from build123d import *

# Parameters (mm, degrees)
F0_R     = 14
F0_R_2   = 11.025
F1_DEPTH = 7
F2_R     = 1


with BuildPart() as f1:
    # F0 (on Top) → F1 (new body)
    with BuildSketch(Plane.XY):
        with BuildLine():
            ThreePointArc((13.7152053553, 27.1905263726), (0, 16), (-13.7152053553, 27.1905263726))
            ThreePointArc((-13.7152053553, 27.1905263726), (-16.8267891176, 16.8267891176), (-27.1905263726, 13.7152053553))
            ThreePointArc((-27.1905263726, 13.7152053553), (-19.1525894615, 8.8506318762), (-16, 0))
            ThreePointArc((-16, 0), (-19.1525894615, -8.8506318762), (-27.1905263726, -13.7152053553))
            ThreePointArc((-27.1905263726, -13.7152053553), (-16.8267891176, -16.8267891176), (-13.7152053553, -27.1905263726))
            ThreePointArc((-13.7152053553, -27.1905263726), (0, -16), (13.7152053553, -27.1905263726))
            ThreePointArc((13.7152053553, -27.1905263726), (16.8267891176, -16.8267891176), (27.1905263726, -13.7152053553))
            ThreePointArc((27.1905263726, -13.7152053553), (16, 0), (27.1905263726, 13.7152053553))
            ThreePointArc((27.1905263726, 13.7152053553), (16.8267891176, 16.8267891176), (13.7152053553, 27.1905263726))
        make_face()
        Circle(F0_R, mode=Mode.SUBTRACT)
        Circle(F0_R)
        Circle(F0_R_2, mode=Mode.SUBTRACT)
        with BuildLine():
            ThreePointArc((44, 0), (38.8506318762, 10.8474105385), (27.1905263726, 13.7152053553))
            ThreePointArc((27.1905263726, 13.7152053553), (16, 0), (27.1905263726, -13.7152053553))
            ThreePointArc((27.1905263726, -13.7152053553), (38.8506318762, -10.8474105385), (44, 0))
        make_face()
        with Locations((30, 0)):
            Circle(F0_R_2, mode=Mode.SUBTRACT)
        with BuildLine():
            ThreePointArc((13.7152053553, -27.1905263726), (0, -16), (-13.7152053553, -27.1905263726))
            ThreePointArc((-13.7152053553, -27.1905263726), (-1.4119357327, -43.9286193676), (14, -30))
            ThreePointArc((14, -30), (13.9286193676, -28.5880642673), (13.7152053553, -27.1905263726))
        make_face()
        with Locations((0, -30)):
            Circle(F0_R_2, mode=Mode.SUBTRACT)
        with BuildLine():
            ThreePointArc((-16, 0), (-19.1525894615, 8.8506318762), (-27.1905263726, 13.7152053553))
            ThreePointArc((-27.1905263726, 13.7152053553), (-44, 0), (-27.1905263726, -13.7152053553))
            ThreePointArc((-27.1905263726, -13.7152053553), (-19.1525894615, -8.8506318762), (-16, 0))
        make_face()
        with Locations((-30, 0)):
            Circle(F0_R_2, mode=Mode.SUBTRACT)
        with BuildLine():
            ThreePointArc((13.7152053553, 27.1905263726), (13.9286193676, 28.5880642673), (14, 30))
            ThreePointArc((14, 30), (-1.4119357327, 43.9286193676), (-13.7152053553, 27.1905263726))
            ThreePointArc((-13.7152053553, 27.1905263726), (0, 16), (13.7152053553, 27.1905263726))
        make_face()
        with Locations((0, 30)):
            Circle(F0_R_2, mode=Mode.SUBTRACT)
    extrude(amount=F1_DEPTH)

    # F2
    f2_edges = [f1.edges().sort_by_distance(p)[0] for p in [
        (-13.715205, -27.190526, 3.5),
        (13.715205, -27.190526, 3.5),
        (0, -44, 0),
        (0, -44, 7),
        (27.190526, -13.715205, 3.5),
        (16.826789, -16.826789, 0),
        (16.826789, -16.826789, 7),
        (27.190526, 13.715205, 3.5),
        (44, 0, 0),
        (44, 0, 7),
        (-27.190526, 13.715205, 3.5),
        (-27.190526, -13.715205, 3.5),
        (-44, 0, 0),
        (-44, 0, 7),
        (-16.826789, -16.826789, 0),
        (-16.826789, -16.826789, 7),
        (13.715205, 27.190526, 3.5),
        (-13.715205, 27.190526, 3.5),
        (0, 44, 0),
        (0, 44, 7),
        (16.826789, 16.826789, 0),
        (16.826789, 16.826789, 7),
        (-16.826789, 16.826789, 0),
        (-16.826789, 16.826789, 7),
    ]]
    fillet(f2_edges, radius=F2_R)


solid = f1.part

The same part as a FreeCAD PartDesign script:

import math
import FreeCAD as App
import Part
import Sketcher

V = App.Vector
Q = App.Units.Quantity


def edges_at(feature, points):
    """Names of the edges that pass closest to the given points."""
    edges = feature.Shape.Edges
    near = lambda p: min(range(len(edges)), key=lambda i: edges[i].distToShape(Part.Vertex(*p))[0])
    return sorted({f"Edge{near(p) + 1}" for p in points})

doc = App.newDocument("Part")
body = doc.addObject("PartDesign::Body", "Body")

sketch1 = body.newObject("Sketcher::SketchObject", "Sketch")
sketch1.AttachmentSupport = (doc.getObject("XY_Plane"), [""])
sketch1.MapMode = "FlatFace"
sketch1.addGeometry(Part.ArcOfCircle(Part.Circle(V(24.9, 24.9, 0), V(0, 0, 1), 11.4), math.radians(168), math.radians(282)), False)
sketch1.addGeometry(Part.ArcOfCircle(Part.Circle(V(0, 30, 0), V(0, 0, 1), 14), math.radians(-11.58), math.radians(0)), False)
sketch1.addGeometry(Part.ArcOfCircle(Part.Circle(V(0, 30, 0), V(0, 0, 1), 14), math.radians(0), math.radians(192)), False)
sketch1.addGeometry(Part.ArcOfCircle(Part.Circle(V(-24.9, 24.9, 0), V(0, 0, 1), 11.4), math.radians(-102), math.radians(12)), False)
sketch1.addGeometry(Part.ArcOfCircle(Part.Circle(V(-30, 0, 0), V(0, 0, 1), 14), math.radians(78), math.radians(282)), False)
sketch1.addGeometry(Part.ArcOfCircle(Part.Circle(V(-24.9, -24.9, 0), V(0, 0, 1), 11.4), math.radians(-12), math.radians(102)), False)
sketch1.addGeometry(Part.ArcOfCircle(Part.Circle(V(0, -30, 0), V(0, 0, 1), 14), math.radians(168), math.radians(360)), False)
sketch1.addGeometry(Part.ArcOfCircle(Part.Circle(V(0, -30, 0), V(0, 0, 1), 14), math.radians(0), math.radians(11.58)), False)
sketch1.addGeometry(Part.ArcOfCircle(Part.Circle(V(24.9, -24.9, 0), V(0, 0, 1), 11.4), math.radians(78), math.radians(192)), False)
sketch1.addGeometry(Part.ArcOfCircle(Part.Circle(V(30, 0, 0), V(0, 0, 1), 14), math.radians(-102), math.radians(0)), False)
sketch1.addGeometry(Part.ArcOfCircle(Part.Circle(V(30, 0, 0), V(0, 0, 1), 14), math.radians(0), math.radians(102)), False)
sketch1.addGeometry(Part.Circle(V(0, -30, 0), V(0, 0, 1), 11), False)
sketch1.addGeometry(Part.Circle(V(-30, 0, 0), V(0, 0, 1), 11), False)
sketch1.addGeometry(Part.Circle(V(0, 0, 0), V(0, 0, 1), 11), False)
sketch1.addGeometry(Part.Circle(V(30, 0, 0), V(0, 0, 1), 11), False)
sketch1.addGeometry(Part.Circle(V(0, 30, 0), V(0, 0, 1), 11), False)
sketch1.addConstraint(Sketcher.Constraint("Tangent", 0, 1, 1, 1))
sketch1.addConstraint(Sketcher.Constraint("Tangent", 1, 2, 2, 1))
sketch1.addConstraint(Sketcher.Constraint("Tangent", 2, 2, 3, 2))
sketch1.addConstraint(Sketcher.Constraint("Tangent", 3, 1, 4, 1))
sketch1.addConstraint(Sketcher.Constraint("Tangent", 4, 2, 5, 2))
sketch1.addConstraint(Sketcher.Constraint("Tangent", 5, 1, 6, 1))
sketch1.addConstraint(Sketcher.Constraint("Tangent", 6, 2, 7, 1))
sketch1.addConstraint(Sketcher.Constraint("Tangent", 7, 2, 8, 2))
sketch1.addConstraint(Sketcher.Constraint("Tangent", 8, 1, 9, 1))
sketch1.addConstraint(Sketcher.Constraint("Tangent", 9, 2, 10, 1))
sketch1.addConstraint(Sketcher.Constraint("Tangent", 10, 2, 0, 2))
sketch1.addConstraint(Sketcher.Constraint("Coincident", 13, 3, -1, 1))
sketch1.addConstraint(Sketcher.Constraint("Coincident", 11, 3, 6, 3))
sketch1.addConstraint(Sketcher.Constraint("Coincident", 12, 3, 4, 3))
sketch1.addConstraint(Sketcher.Constraint("Coincident", 14, 3, 9, 3))
sketch1.addConstraint(Sketcher.Constraint("Coincident", 15, 3, 1, 3))
sketch1.addConstraint(Sketcher.Constraint("Equal", 1, 2))
sketch1.addConstraint(Sketcher.Constraint("Equal", 0, 3))
sketch1.addConstraint(Sketcher.Constraint("Equal", 2, 4))
sketch1.addConstraint(Sketcher.Constraint("Equal", 3, 5))
sketch1.addConstraint(Sketcher.Constraint("Equal", 4, 6))
sketch1.addConstraint(Sketcher.Constraint("Equal", 6, 7))
sketch1.addConstraint(Sketcher.Constraint("Equal", 5, 8))
sketch1.addConstraint(Sketcher.Constraint("Equal", 7, 9))
sketch1.addConstraint(Sketcher.Constraint("Equal", 9, 10))
sketch1.addConstraint(Sketcher.Constraint("Equal", 11, 12))
sketch1.addConstraint(Sketcher.Constraint("Equal", 12, 13))
sketch1.addConstraint(Sketcher.Constraint("Equal", 13, 14))
sketch1.addConstraint(Sketcher.Constraint("Equal", 14, 15))
sketch1.addConstraint(Sketcher.Constraint("Symmetric", 0, 3, 5, 3, -1, 1))
sketch1.addConstraint(Sketcher.Constraint("Symmetric", 3, 3, 8, 3, -1, 1))
sketch1.addConstraint(Sketcher.Constraint("Symmetric", 0, 3, 3, 3, -2))
sketch1.addConstraint(Sketcher.Constraint("PointOnObject", 9, 2, -1))
sketch1.addConstraint(Sketcher.Constraint("Horizontal", 15, 3, 1, 2))
sketch1.addConstraint(Sketcher.Constraint("Horizontal", 11, 3, 6, 2))
sketch1.addConstraint(Sketcher.Constraint("Radius", 1, Q("14 mm")))
sketch1.addConstraint(Sketcher.Constraint("Diameter", 11, Q("22.05 mm")))
sketch1.addConstraint(Sketcher.Constraint("DistanceY", -1, 1, 1, 3, Q("30 mm")))
sketch1.addConstraint(Sketcher.Constraint("DistanceX", 4, 3, -1, 1, Q("30 mm")))
sketch1.addConstraint(Sketcher.Constraint("Radius", 0, Q("11.41653 mm")))
pad1 = body.newObject("PartDesign::Pad", "Pad")
pad1.Profile = sketch1
pad1.Length = 7
doc.recompute()

fillet = body.newObject("PartDesign::Fillet", "Fillet")
fillet.Base = (pad1, edges_at(pad1, [
    (-13.715, -27.191, 3.5),
    (13.715, -27.191, 3.5),
    (-1.412, -43.929, 0),
    (-1.412, -43.929, 7),
    (27.191, -13.715, 3.5),
    (16.827, -16.827, 0),
    (16.827, -16.827, 7),
    (27.191, 13.715, 3.5),
    (44, 0, 3.5),
    (44, 0, 3.5),
    (-27.191, 13.715, 3.5),
    (-27.191, -13.715, 3.5),
    (-44, 0, 0),
    (-44, 0, 7),
    (-16.827, -16.827, 0),
    (-16.827, -16.827, 7),
    (13.715, 27.191, 3.5),
    (-13.715, 27.191, 3.5),
    (-1.412, 43.929, 0),
    (-1.412, 43.929, 7),
    (16.827, 16.827, 0),
    (16.827, 16.827, 7),
    (-16.827, 16.827, 0),
    (-16.827, 16.827, 7),
]))
fillet.Radius = 1

doc.recompute()
